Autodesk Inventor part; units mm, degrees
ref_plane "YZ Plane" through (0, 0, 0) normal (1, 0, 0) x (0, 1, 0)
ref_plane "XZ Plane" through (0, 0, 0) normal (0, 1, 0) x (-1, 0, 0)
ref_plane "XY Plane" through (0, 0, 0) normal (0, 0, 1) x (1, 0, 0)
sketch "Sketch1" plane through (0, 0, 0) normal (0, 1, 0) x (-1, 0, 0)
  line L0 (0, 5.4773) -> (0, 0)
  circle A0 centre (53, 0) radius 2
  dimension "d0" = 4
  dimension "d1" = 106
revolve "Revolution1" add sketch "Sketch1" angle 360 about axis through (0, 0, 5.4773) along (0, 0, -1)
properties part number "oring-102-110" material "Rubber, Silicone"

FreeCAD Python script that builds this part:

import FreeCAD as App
import Part
import Sketcher
Q = App.Units.Quantity

doc = App.newDocument("Part")
body = doc.addObject("PartDesign::Body", "Body")

sketch1 = body.newObject("Sketcher::SketchObject", "Sketch")
sketch1.AttachmentSupport = (doc.getObject("XZ_Plane"), [""])
sketch1.MapMode = "FlatFace"
sketch1.addGeometry(Part.Circle(App.Vector(-53, 0, 0), App.Vector(0, 0, 1), 2), False)
sketch1.addConstraint([
    Sketcher.Constraint("PointOnObject", 0, 3, -1),
    Sketcher.Constraint("Diameter", 0, Q("4 mm")),
    Sketcher.Constraint("DistanceX", 0, 3, -1, 1, Q("53 mm")),
])
revolution = body.newObject("PartDesign::Revolution", "Revolution")
revolution.Profile = sketch1
revolution.ReferenceAxis = (sketch1, ["V_Axis"])
revolution.Angle = 360

doc.recompute()
